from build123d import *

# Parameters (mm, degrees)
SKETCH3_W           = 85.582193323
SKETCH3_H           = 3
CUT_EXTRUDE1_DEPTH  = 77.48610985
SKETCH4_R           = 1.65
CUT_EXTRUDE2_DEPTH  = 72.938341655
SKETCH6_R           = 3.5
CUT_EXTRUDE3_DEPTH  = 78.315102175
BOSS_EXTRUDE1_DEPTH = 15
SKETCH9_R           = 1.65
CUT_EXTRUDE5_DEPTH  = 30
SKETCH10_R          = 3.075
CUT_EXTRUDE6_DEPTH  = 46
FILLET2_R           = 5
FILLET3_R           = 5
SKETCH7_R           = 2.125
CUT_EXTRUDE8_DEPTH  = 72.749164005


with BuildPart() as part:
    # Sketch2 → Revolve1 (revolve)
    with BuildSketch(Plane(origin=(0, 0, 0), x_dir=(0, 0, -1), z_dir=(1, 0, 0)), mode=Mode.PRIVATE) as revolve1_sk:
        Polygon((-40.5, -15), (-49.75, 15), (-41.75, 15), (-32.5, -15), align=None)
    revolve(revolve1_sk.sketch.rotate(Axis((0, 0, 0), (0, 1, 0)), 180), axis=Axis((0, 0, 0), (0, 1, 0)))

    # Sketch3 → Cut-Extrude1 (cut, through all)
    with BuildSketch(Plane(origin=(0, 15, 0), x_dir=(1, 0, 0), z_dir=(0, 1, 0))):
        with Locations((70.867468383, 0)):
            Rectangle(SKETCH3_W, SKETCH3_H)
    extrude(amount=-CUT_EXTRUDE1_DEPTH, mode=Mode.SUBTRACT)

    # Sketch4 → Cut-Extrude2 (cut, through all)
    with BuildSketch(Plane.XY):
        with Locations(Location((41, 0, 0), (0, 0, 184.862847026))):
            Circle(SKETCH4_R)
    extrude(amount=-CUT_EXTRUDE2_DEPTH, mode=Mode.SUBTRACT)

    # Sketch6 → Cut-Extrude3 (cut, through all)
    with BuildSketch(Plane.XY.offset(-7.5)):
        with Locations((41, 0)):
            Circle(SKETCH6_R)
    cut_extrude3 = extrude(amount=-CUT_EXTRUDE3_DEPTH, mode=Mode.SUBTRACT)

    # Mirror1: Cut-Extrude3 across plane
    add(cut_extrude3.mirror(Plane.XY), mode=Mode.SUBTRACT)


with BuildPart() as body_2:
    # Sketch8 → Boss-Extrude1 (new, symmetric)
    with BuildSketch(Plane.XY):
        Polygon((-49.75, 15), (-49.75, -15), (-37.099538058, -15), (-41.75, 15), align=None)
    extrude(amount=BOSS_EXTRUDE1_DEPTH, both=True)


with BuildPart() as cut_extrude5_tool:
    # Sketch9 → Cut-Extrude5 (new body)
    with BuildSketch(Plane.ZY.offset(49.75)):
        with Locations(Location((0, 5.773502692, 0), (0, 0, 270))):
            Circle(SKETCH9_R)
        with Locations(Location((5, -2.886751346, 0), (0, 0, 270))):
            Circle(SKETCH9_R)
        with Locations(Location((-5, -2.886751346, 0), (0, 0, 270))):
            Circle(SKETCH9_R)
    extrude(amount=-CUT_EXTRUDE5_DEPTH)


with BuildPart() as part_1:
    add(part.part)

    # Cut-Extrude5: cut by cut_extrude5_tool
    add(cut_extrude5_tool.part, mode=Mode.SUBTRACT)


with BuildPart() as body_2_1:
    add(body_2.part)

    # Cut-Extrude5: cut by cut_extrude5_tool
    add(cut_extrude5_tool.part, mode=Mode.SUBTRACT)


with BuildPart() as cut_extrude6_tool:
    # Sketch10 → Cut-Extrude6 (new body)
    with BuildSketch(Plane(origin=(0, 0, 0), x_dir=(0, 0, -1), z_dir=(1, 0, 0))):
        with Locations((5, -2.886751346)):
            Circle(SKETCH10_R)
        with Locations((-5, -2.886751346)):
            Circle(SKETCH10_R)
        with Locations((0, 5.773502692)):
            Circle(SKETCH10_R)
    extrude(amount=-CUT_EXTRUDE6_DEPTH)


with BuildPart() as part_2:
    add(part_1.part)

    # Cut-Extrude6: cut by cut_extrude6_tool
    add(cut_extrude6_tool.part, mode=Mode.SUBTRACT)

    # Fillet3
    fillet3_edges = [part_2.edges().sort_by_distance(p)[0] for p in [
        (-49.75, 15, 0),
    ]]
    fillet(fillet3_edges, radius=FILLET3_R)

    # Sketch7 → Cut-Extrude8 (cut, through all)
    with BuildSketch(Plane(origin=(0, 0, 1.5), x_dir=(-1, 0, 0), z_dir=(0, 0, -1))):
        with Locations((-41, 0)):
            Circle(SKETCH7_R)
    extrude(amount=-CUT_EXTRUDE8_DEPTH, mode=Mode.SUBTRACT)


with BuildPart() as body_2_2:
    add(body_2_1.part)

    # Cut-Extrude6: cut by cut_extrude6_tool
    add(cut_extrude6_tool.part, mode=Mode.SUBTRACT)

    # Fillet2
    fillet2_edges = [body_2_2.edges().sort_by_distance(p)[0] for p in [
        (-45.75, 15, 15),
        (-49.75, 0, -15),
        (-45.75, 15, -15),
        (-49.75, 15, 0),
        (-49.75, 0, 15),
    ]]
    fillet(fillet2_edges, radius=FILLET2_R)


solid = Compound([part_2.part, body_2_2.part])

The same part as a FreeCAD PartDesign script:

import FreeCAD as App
import Part
import Sketcher
Q = App.Units.Quantity


def edges_at(feature, points):
    """Names of the edges that pass closest to the given points."""
    edges = feature.Shape.Edges
    near = lambda p: min(range(len(edges)), key=lambda i: edges[i].distToShape(Part.Vertex(*p))[0])
    return sorted({f"Edge{near(p) + 1}" for p in points})


def add_polygon(sketch, points):
    """Adds a closed chain of lines whose ends are joined by coincident constraints."""
    first, n = sketch.GeometryCount, len(points)
    for a, b in zip(points, points[1:] + points[:1]):
        sketch.addGeometry(Part.LineSegment(App.Vector(*a, 0), App.Vector(*b, 0)), False)
    for i in range(n):
        sketch.addConstraint(Sketcher.Constraint("Coincident", first + i, 2, first + (i + 1) % n, 1))

doc = App.newDocument("Part")
params = doc.addObject("Spreadsheet::Sheet", "Params")
for row, (alias, value) in enumerate([
    ("sketch1_height", "8 mm"),
    ("revolution_angle", "360 deg"),
    ("sketch2_height", "3 mm"),
    ("sketch3_diameter", "3.3 mm"),
    ("sketch4_diameter", "7 mm"),
    ("sketch5_width", "8 mm"),
    ("sketch5_height", "30 mm"),
    ("pad1_length", "30 mm"),
    ("sketch6_diameter", "3.3 mm"),
    ("pad2_length", "30 mm"),
    ("sketch7_diameter", "6.15 mm"),
    ("pad3_length", "46 mm"),
    ("fillet_radius", "5 mm"),
    ("sketch8_diameter", "4.25 mm"),
    ("fillet2_radius", "5 mm"),
], start=1):
    params.set(f"A{row}", alias)
    params.set(f"B{row}", "=" + value)
    params.setAlias(f"B{row}", alias)

body = doc.addObject("PartDesign::Body", "Body")

sketch1 = doc.addObject("Sketcher::SketchObject", "Sketch")
body.addObject(sketch1)
sketch1.AttachmentSupport = (doc.YZ_Plane, [""])
sketch1.MapMode = "FlatFace"
add_polygon(sketch1, [(15, 50), (-15, 40), (-15, 32), (15, 42)])
sketch1.addConstraint([
    Sketcher.Constraint("Vertical", 1),
    Sketcher.Constraint("Vertical", 3),
    Sketcher.Constraint("Parallel", 0, 2),
    Sketcher.Constraint("DistanceY", 1, 2, 1, 1, Q("8 mm")),
    Sketcher.Constraint("DistanceX", 0, 2, -1, 1, Q("15 mm")),
    Sketcher.Constraint("DistanceX", -1, 1, 2, 2, Q("15 mm")),
    Sketcher.Constraint("DistanceY", -1, 1, 0, 2, Q("40.5 mm")),
    Sketcher.Constraint("DistanceY", -1, 1, 2, 2, Q("41.75 mm")),
])
sketch1.setExpression("Constraints[7]", "Params.sketch1_height")
revolution = doc.addObject("PartDesign::Revolution", "Revolution")
body.addObject(revolution)
revolution.Profile = sketch1
revolution.ReferenceAxis = (sketch1, ["H_Axis"])
revolution.setExpression("Angle", "Params.revolution_angle")

sketch2 = doc.addObject("Sketcher::SketchObject", "Sketch001")
body.addObject(sketch2)
sketch2.AttachmentSupport = (doc.XZ_Plane, [""])
sketch2.MapMode = "FlatFace"
sketch2.AttachmentOffset = App.Placement(App.Vector(0, 0, -15), App.Rotation())
add_polygon(sketch2, [(28.1, -1.5), (28.1, 1.5), (113.7, 1.5), (113.7, -1.5)])
sketch2.addConstraint([
    Sketcher.Constraint("Vertical", 0),
    Sketcher.Constraint("Horizontal", 1),
    Sketcher.Constraint("Vertical", 2),
    Sketcher.Constraint("Horizontal", 3),
    Sketcher.Constraint("DistanceY", 0, 1, 0, 2, Q("3 mm")),
    Sketcher.Constraint("DistanceY", -1, 1, 0, 2, Q("1.5 mm")),
    Sketcher.Constraint("DistanceX", 1, 1, 1, 2, Q("85.582193 mm")),
    Sketcher.Constraint("DistanceX", -1, 1, 0, 2, Q("28.076372 mm")),
])
sketch2.setExpression("Constraints[8]", "Params.sketch2_height")
pocket1 = doc.addObject("PartDesign::Pocket", "Pocket")
body.addObject(pocket1)
pocket1.Profile = sketch2
pocket1.Type = "ThroughAll"
pocket1.Reversed = True

sketch3 = doc.addObject("Sketcher::SketchObject", "Sketch002")
body.addObject(sketch3)
sketch3.AttachmentSupport = (doc.XY_Plane, [""])
sketch3.MapMode = "FlatFace"
sketch3.addGeometry(Part.Circle(App.Vector(41, 0, 0), App.Vector(0, 0, 1), 1.6), False)
sketch3.addConstraint([
    Sketcher.Constraint("PointOnObject", 0, 3, -1),
    Sketcher.Constraint("Diameter", 0, Q("3.3 mm")),
    Sketcher.Constraint("DistanceX", -1, 1, 0, 3, Q("41 mm")),
])
sketch3.setExpression("Constraints[1]", "Params.sketch3_diameter")
pocket2 = doc.addObject("PartDesign::Pocket", "Pocket001")
body.addObject(pocket2)
pocket2.Profile = sketch3
pocket2.Type = "ThroughAll"

sketch4 = doc.addObject("Sketcher::SketchObject", "Sketch003")
body.addObject(sketch4)
sketch4.AttachmentSupport = (doc.XY_Plane, [""])
sketch4.MapMode = "FlatFace"
sketch4.AttachmentOffset = App.Placement(App.Vector(0, 0, -7.5), App.Rotation())
sketch4.addGeometry(Part.Circle(App.Vector(41, 0, 0), App.Vector(0, 0, 1), 3.5), False)
sketch4.addConstraint([
    Sketcher.Constraint("PointOnObject", 0, 3, -1),
    Sketcher.Constraint("Diameter", 0, Q("7 mm")),
    Sketcher.Constraint("DistanceX", -1, 1, 0, 3, Q("41 mm")),
])
sketch4.setExpression("Constraints[1]", "Params.sketch4_diameter")
pocket3 = doc.addObject("PartDesign::Pocket", "Pocket002")
body.addObject(pocket3)
pocket3.Profile = sketch4
pocket3.Type = "ThroughAll"
doc.recompute()

mirrored = doc.addObject("PartDesign::Mirrored", "Mirrored")
body.addObject(mirrored)
mirrored.Originals = [pocket3]
mirrored.MirrorPlane = (doc.XY_Plane, [""])
body.Tip = mirrored
body2 = doc.addObject("PartDesign::Body", "Body001")

sketch5 = doc.addObject("Sketcher::SketchObject", "Sketch004")
body2.addObject(sketch5)
sketch5.AttachmentSupport = (doc.getObject("XY_Plane001"), [""])
sketch5.MapMode = "FlatFace"
add_polygon(sketch5, [(-50, 15), (-50, -15), (-37, -15), (-42, 15)])
sketch5.addConstraint([
    Sketcher.Constraint("Vertical", 0),
    Sketcher.Constraint("Horizontal", 1),
    Sketcher.Constraint("Horizontal", 3),
    Sketcher.Constraint("DistanceX", 3, 2, 3, 1, Q("8 mm")),
    Sketcher.Constraint("DistanceY", 0, 2, 0, 1, Q("30 mm")),
    Sketcher.Constraint("DistanceY", 0, 2, -1, 1, Q("15 mm")),
    Sketcher.Constraint("DistanceX", 0, 2, -1, 1, Q("49.75 mm")),
    Sketcher.Constraint("DistanceX", 1, 1, 1, 2, Q("12.650462 mm")),
])
sketch5.setExpression("Constraints[7]", "Params.sketch5_width")
sketch5.setExpression("Constraints[8]", "Params.sketch5_height")
pad1 = doc.addObject("PartDesign::Pad", "Pad")
body2.addObject(pad1)
pad1.Profile = sketch5
pad1.setExpression("Length", "Params.pad1_length")
pad1.Midplane = True
body3 = doc.addObject("PartDesign::Body", "Body002")
body3.AllowCompound = True

sketch6 = doc.addObject("Sketcher::SketchObject", "Sketch005")
body3.addObject(sketch6)
sketch6.AttachmentSupport = (doc.getObject("YZ_Plane002"), [""])
sketch6.MapMode = "FlatFace"
sketch6.AttachmentOffset = App.Placement(App.Vector(0, 0, -49.75), App.Rotation())
sketch6.addGeometry([
    Part.Circle(App.Vector(5.8, 0, 0), App.Vector(0, 0, 1), 1.6),
    Part.Circle(App.Vector(-2.9, 5, 0), App.Vector(0, 0, 1), 1.6),
    Part.Circle(App.Vector(-2.9, -5, 0), App.Vector(0, 0, 1), 1.6),
], False)
sketch6.addConstraint([
    Sketcher.Constraint("Equal", 0, 1),
    Sketcher.Constraint("Equal", 1, 2),
    Sketcher.Constraint("Symmetric", 1, 3, 2, 3, -1),
    Sketcher.Constraint("PointOnObject", 0, 3, -1),
    Sketcher.Constraint("Diameter", 0, Q("3.3 mm")),
    Sketcher.Constraint("DistanceY", -1, 1, 1, 3, Q("5 mm")),
    Sketcher.Constraint("DistanceX", 1, 3, -1, 1, Q("2.886751 mm")),
    Sketcher.Constraint("DistanceX", -1, 1, 0, 3, Q("5.773503 mm")),
])
sketch6.setExpression("Constraints[4]", "Params.sketch6_diameter")
pad2 = doc.addObject("PartDesign::Pad", "Pad001")
body3.addObject(pad2)
pad2.Profile = sketch6
pad2.setExpression("Length", "Params.pad2_length")
doc.recompute()

body4 = doc.addObject("PartDesign::Body", "Body003")
body4.BaseFeature = body3
boolean = doc.addObject("PartDesign::Boolean", "Boolean")
body.addObject(boolean)
boolean.Type = "Cut"
boolean.addObjects([body4])
doc.recompute()

boolean2 = doc.addObject("PartDesign::Boolean", "Boolean001")
body2.addObject(boolean2)
boolean2.Type = "Cut"
boolean2.addObjects([body3])
body5 = doc.addObject("PartDesign::Body", "Body004")
body5.AllowCompound = True

sketch7 = doc.addObject("Sketcher::SketchObject", "Sketch006")
body5.addObject(sketch7)
sketch7.AttachmentSupport = (doc.getObject("YZ_Plane004"), [""])
sketch7.MapMode = "FlatFace"
sketch7.addGeometry([
    Part.Circle(App.Vector(-2.9, -5, 0), App.Vector(0, 0, 1), 3.1),
    Part.Circle(App.Vector(-2.9, 5, 0), App.Vector(0, 0, 1), 3.1),
    Part.Circle(App.Vector(5.8, 0, 0), App.Vector(0, 0, 1), 3.1),
], False)
sketch7.addConstraint([
    Sketcher.Constraint("Equal", 0, 1),
    Sketcher.Constraint("Equal", 1, 2),
    Sketcher.Constraint("Symmetric", 0, 3, 1, 3, -1),
    Sketcher.Constraint("PointOnObject", 2, 3, -1),
    Sketcher.Constraint("Diameter", 0, Q("6.15 mm")),
    Sketcher.Constraint("DistanceY", 0, 3, -1, 1, Q("5 mm")),
    Sketcher.Constraint("DistanceX", 0, 3, -1, 1, Q("2.886751 mm")),
    Sketcher.Constraint("DistanceX", -1, 1, 2, 3, Q("5.773503 mm")),
])
sketch7.setExpression("Constraints[4]", "Params.sketch7_diameter")
pad3 = doc.addObject("PartDesign::Pad", "Pad002")
body5.addObject(pad3)
pad3.Profile = sketch7
pad3.setExpression("Length", "Params.pad3_length")
pad3.Reversed = True
doc.recompute()

body6 = doc.addObject("PartDesign::Body", "Body005")
body6.BaseFeature = body5
boolean3 = doc.addObject("PartDesign::Boolean", "Boolean002")
body.addObject(boolean3)
boolean3.Type = "Cut"
boolean3.addObjects([body6])
doc.recompute()

fillet = doc.addObject("PartDesign::Fillet", "Fillet")
body.addObject(fillet)
fillet.Base = (boolean3, edges_at(boolean3, [(-49.75, 15, 0)]))
fillet.setExpression("Radius", "Params.fillet_radius")

sketch8 = doc.addObject("Sketcher::SketchObject", "Sketch007")
body.addObject(sketch8)
sketch8.AttachmentSupport = (doc.XY_Plane, [""])
sketch8.MapMode = "FlatFace"
sketch8.AttachmentOffset = App.Placement(App.Vector(0, 0, 1.5), App.Rotation())
sketch8.addGeometry(Part.Circle(App.Vector(41, 0, 0), App.Vector(0, 0, 1), 2.1), False)
sketch8.addConstraint([
    Sketcher.Constraint("PointOnObject", 0, 3, -1),
    Sketcher.Constraint("Diameter", 0, Q("4.25 mm")),
    Sketcher.Constraint("DistanceX", -1, 1, 0, 3, Q("41 mm")),
])
sketch8.setExpression("Constraints[1]", "Params.sketch8_diameter")
pocket4 = doc.addObject("PartDesign::Pocket", "Pocket003")
body.addObject(pocket4)
pocket4.Profile = sketch8
pocket4.Type = "ThroughAll"
pocket4.Reversed = True
doc.recompute()

boolean4 = doc.addObject("PartDesign::Boolean", "Boolean003")
body2.addObject(boolean4)
boolean4.Type = "Cut"
boolean4.addObjects([body5])
doc.recompute()

fillet2 = doc.addObject("PartDesign::Fillet", "Fillet001")
body2.addObject(fillet2)
fillet2.Base = (boolean4, edges_at(boolean4, [
    (-45.75, 15, 15),
    (-49.75, 0, -15),
    (-45.75, 15, -15),
    (-49.75, 15, 0),
    (-49.75, 0, 15),
]))
fillet2.setExpression("Radius", "Params.fillet2_radius")

doc.recompute()
